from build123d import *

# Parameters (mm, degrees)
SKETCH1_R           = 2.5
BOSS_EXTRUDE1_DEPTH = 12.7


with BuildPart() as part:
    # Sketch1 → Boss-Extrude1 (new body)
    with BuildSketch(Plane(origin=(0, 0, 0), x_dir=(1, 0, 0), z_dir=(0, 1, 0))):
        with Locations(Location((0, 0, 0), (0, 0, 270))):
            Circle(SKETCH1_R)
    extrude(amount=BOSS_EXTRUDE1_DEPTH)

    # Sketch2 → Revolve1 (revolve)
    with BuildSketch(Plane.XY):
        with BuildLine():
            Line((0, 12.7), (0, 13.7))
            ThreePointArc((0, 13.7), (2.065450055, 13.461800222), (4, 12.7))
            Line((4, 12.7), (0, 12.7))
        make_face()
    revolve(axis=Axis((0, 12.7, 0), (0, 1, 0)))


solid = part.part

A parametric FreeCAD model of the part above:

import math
import FreeCAD as App
import Part
import Sketcher

V = App.Vector
Q = App.Units.Quantity

doc = App.newDocument("Part")
body = doc.addObject("PartDesign::Body", "Body")

sketch1 = body.newObject("Sketcher::SketchObject", "Sketch")
sketch1.AttachmentSupport = (doc.getObject("XZ_Plane"), [""])
sketch1.MapMode = "FlatFace"
sketch1.addGeometry(Part.Circle(V(0, 0, 0), V(0, 0, 1), 2.5), False)
sketch1.addConstraint([
    Sketcher.Constraint("Coincident", 0, 3, -1, 1),
    Sketcher.Constraint("Diameter", 0, Q("5 mm")),
])
pad1 = body.newObject("PartDesign::Pad", "Pad")
pad1.Profile = sketch1
pad1.Length = 12.7
pad1.Reversed = True

sketch2 = body.newObject("Sketcher::SketchObject", "Sketch001")
sketch2.AttachmentSupport = (doc.getObject("XY_Plane"), [""])
sketch2.MapMode = "FlatFace"
sketch2.addGeometry([
    Part.LineSegment(V(0, 13.7, 0), V(0, 12.7, 0)),
    Part.LineSegment(V(0, 12.7, 0), V(4, 12.7, 0)),
    Part.ArcOfCircle(Part.Circle(V(0.1, 5.7, 0), V(0, 0, 1), 8), math.radians(61), math.radians(91)),
], False)
sketch2.addConstraint([
    Sketcher.Constraint("Coincident", 0, 2, 1, 1),
    Sketcher.Constraint("Coincident", 1, 2, 2, 1),
    Sketcher.Constraint("Coincident", 2, 2, 0, 1),
    Sketcher.Constraint("Vertical", 0),
    Sketcher.Constraint("Horizontal", 1),
    Sketcher.Constraint("PointOnObject", 0, 2, -2),
    Sketcher.Constraint("DistanceX", 1, 1, 1, 2, Q("4 mm")),
    Sketcher.Constraint("DistanceY", 0, 2, 0, 1, Q("1 mm")),
    Sketcher.Constraint("DistanceY", -1, 1, 0, 2, Q("12.7 mm")),
    Sketcher.Constraint("Radius", 2, Q("8.009455 mm")),
])
revolution = body.newObject("PartDesign::Revolution", "Revolution")
revolution.Profile = sketch2
revolution.ReferenceAxis = (sketch2, ["V_Axis"])
revolution.Angle = 360

doc.recompute()
